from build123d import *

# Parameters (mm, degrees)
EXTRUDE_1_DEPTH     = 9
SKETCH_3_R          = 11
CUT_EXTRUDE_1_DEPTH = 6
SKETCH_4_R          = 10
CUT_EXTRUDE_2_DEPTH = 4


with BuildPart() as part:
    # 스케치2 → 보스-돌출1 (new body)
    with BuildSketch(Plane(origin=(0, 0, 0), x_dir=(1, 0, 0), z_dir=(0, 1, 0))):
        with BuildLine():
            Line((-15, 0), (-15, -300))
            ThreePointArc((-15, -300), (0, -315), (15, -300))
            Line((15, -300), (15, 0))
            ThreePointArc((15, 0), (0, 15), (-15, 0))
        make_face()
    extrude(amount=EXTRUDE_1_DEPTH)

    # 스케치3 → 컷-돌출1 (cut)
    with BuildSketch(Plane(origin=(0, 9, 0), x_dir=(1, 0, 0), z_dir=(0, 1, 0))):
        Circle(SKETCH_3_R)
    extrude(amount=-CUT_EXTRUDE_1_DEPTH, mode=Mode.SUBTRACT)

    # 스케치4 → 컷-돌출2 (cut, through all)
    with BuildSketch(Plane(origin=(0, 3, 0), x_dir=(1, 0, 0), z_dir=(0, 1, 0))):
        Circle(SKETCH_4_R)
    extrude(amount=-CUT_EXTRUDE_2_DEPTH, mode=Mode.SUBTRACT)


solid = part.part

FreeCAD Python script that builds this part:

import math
import FreeCAD as App
import Part
import Sketcher
from FreeCAD import Vector
Q = App.Units.Quantity

doc = App.newDocument("Part")
params = doc.addObject("Spreadsheet::Sheet", "Params")
for row, (alias, value) in enumerate([
    ("sketch1_radius", "15 mm"),
    ("sketch1_height", "300 mm"),
    ("pad1_length", "9 mm"),
    ("sketch2_diameter", "22 mm"),
    ("pocket1_length", "6 mm"),
    ("sketch3_diameter", "20 mm"),
], start=1):
    params.set(f"A{row}", alias)
    params.set(f"B{row}", "=" + value)
    params.setAlias(f"B{row}", alias)

body = doc.addObject("PartDesign::Body", "Body")

sketch1 = body.newObject("Sketcher::SketchObject", "Sketch")
sketch1.AttachmentSupport = (doc.getObject("XZ_Plane"), [""])
sketch1.MapMode = "FlatFace"
sketch1.addGeometry(Part.LineSegment(Vector(-15, 0, 0), Vector(-15, 300, 0)), False)
sketch1.addGeometry(Part.ArcOfCircle(Part.Circle(Vector(0, 300, 0), Vector(0, 0, 1), 15), math.radians(0), math.radians(180)), False)
sketch1.addGeometry(Part.LineSegment(Vector(15, 300, 0), Vector(15, 0, 0)), False)
sketch1.addGeometry(Part.ArcOfCircle(Part.Circle(Vector(0, 0, 0), Vector(0, 0, 1), 15), math.radians(180), math.radians(360)), False)
sketch1.addConstraint(Sketcher.Constraint("Tangent", 0, 2, 1, 2))
sketch1.addConstraint(Sketcher.Constraint("Tangent", 1, 1, 2, 1))
sketch1.addConstraint(Sketcher.Constraint("Tangent", 2, 2, 3, 2))
sketch1.addConstraint(Sketcher.Constraint("Tangent", 3, 1, 0, 1))
sketch1.addConstraint(Sketcher.Constraint("Vertical", 0))
sketch1.addConstraint(Sketcher.Constraint("Vertical", 2))
sketch1.addConstraint(Sketcher.Constraint("Coincident", 3, 3, -1, 1))
sketch1.addConstraint(Sketcher.Constraint("Radius", 1, Q("15 mm")))
sketch1.addConstraint(Sketcher.Constraint("DistanceY", 0, 1, 0, 2, Q("300 mm")))
sketch1.setExpression("Constraints[7]", "Params.sketch1_radius")
sketch1.setExpression("Constraints[8]", "Params.sketch1_height")
pad1 = body.newObject("PartDesign::Pad", "Pad")
pad1.Profile = sketch1
pad1.setExpression("Length", "Params.pad1_length")
pad1.Reversed = True

sketch2 = body.newObject("Sketcher::SketchObject", "Sketch001")
sketch2.AttachmentSupport = (doc.getObject("XZ_Plane"), [""])
sketch2.MapMode = "FlatFace"
sketch2.AttachmentOffset = App.Placement(Vector(0, 0, -9), App.Rotation())
sketch2.addGeometry(Part.Circle(Vector(0, 0, 0), Vector(0, 0, 1), 11), False)
sketch2.addConstraint(Sketcher.Constraint("Coincident", 0, 3, -1, 1))
sketch2.addConstraint(Sketcher.Constraint("Diameter", 0, Q("22 mm")))
sketch2.setExpression("Constraints[1]", "Params.sketch2_diameter")
pocket1 = body.newObject("PartDesign::Pocket", "Pocket")
pocket1.Profile = sketch2
pocket1.setExpression("Length", "Params.pocket1_length")
pocket1.Reversed = True

sketch3 = body.newObject("Sketcher::SketchObject", "Sketch002")
sketch3.AttachmentSupport = (doc.getObject("XZ_Plane"), [""])
sketch3.MapMode = "FlatFace"
sketch3.AttachmentOffset = App.Placement(Vector(0, 0, -3), App.Rotation())
sketch3.addGeometry(Part.Circle(Vector(0, 0, 0), Vector(0, 0, 1), 10), False)
sketch3.addConstraint(Sketcher.Constraint("Coincident", 0, 3, -1, 1))
sketch3.addConstraint(Sketcher.Constraint("Diameter", 0, Q("20 mm")))
sketch3.setExpression("Constraints[1]", "Params.sketch3_diameter")
pocket2 = body.newObject("PartDesign::Pocket", "Pocket001")
pocket2.Profile = sketch3
pocket2.Type = "ThroughAll"
pocket2.Reversed = True

doc.recompute()
